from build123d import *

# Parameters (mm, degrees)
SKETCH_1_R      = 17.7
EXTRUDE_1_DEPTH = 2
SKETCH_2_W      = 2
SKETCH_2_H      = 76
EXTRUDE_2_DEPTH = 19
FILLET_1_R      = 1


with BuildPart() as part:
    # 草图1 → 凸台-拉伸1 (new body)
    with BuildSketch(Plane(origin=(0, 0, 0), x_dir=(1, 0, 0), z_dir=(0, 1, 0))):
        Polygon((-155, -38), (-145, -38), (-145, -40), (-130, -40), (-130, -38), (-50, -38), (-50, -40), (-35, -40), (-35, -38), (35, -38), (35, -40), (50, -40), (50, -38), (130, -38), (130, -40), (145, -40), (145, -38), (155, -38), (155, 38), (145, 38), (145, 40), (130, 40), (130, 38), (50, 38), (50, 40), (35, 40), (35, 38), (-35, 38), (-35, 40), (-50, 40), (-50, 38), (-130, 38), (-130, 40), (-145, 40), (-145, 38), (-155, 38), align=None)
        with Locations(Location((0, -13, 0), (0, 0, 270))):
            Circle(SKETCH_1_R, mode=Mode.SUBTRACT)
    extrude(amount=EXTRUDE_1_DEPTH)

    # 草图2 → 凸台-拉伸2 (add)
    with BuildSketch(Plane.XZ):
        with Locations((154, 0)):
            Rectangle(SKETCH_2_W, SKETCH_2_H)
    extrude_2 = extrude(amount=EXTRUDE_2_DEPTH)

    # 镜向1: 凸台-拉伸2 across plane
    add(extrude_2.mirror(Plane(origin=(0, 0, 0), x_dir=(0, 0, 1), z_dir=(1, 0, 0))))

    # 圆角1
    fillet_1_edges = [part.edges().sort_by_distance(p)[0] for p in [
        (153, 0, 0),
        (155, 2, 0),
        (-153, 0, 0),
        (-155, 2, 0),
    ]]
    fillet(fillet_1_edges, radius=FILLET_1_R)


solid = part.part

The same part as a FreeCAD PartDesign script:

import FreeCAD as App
import Part
import Sketcher
from FreeCAD import Vector
Q = App.Units.Quantity


def edges_at(feature, points):
    """Names of the edges that pass closest to the given points."""
    edges = feature.Shape.Edges
    near = lambda p: min(range(len(edges)), key=lambda i: edges[i].distToShape(Part.Vertex(*p))[0])
    return sorted({f"Edge{near(p) + 1}" for p in points})

doc = App.newDocument("Part")
body = doc.addObject("PartDesign::Body", "Body")

sketch1 = body.newObject("Sketcher::SketchObject", "Sketch")
sketch1.AttachmentSupport = (doc.getObject("XZ_Plane"), [""])
sketch1.MapMode = "FlatFace"
sketch1.addGeometry(Part.LineSegment(Vector(-155, 38, 0), Vector(-145, 38, 0)), False)
sketch1.addGeometry(Part.LineSegment(Vector(-145, 38, 0), Vector(-145, 40, 0)), False)
sketch1.addGeometry(Part.LineSegment(Vector(-145, 40, 0), Vector(-130, 40, 0)), False)
sketch1.addGeometry(Part.LineSegment(Vector(-130, 40, 0), Vector(-130, 38, 0)), False)
sketch1.addGeometry(Part.LineSegment(Vector(-130, 38, 0), Vector(-50, 38, 0)), False)
sketch1.addGeometry(Part.LineSegment(Vector(-50, 38, 0), Vector(-50, 40, 0)), False)
sketch1.addGeometry(Part.LineSegment(Vector(-50, 40, 0), Vector(-35, 40, 0)), False)
sketch1.addGeometry(Part.LineSegment(Vector(-35, 40, 0), Vector(-35, 38, 0)), False)
sketch1.addGeometry(Part.LineSegment(Vector(-35, 38, 0), Vector(35, 38, 0)), False)
sketch1.addGeometry(Part.LineSegment(Vector(35, 38, 0), Vector(35, 40, 0)), False)
sketch1.addGeometry(Part.LineSegment(Vector(35, 40, 0), Vector(50, 40, 0)), False)
sketch1.addGeometry(Part.LineSegment(Vector(50, 40, 0), Vector(50, 38, 0)), False)
sketch1.addGeometry(Part.LineSegment(Vector(50, 38, 0), Vector(130, 38, 0)), False)
sketch1.addGeometry(Part.LineSegment(Vector(130, 38, 0), Vector(130, 40, 0)), False)
sketch1.addGeometry(Part.LineSegment(Vector(130, 40, 0), Vector(145, 40, 0)), False)
sketch1.addGeometry(Part.LineSegment(Vector(145, 40, 0), Vector(145, 38, 0)), False)
sketch1.addGeometry(Part.LineSegment(Vector(145, 38, 0), Vector(155, 38, 0)), False)
sketch1.addGeometry(Part.LineSegment(Vector(155, 38, 0), Vector(155, -38, 0)), False)
sketch1.addGeometry(Part.LineSegment(Vector(155, -38, 0), Vector(145, -38, 0)), False)
sketch1.addGeometry(Part.LineSegment(Vector(145, -38, 0), Vector(145, -40, 0)), False)
sketch1.addGeometry(Part.LineSegment(Vector(145, -40, 0), Vector(130, -40, 0)), False)
sketch1.addGeometry(Part.LineSegment(Vector(130, -40, 0), Vector(130, -38, 0)), False)
sketch1.addGeometry(Part.LineSegment(Vector(130, -38, 0), Vector(50, -38, 0)), False)
sketch1.addGeometry(Part.LineSegment(Vector(50, -38, 0), Vector(50, -40, 0)), False)
sketch1.addGeometry(Part.LineSegment(Vector(50, -40, 0), Vector(35, -40, 0)), False)
sketch1.addGeometry(Part.LineSegment(Vector(35, -40, 0), Vector(35, -38, 0)), False)
sketch1.addGeometry(Part.LineSegment(Vector(35, -38, 0), Vector(-35, -38, 0)), False)
sketch1.addGeometry(Part.LineSegment(Vector(-35, -38, 0), Vector(-35, -40, 0)), False)
sketch1.addGeometry(Part.LineSegment(Vector(-35, -40, 0), Vector(-50, -40, 0)), False)
sketch1.addGeometry(Part.LineSegment(Vector(-50, -40, 0), Vector(-50, -38, 0)), False)
sketch1.addGeometry(Part.LineSegment(Vector(-50, -38, 0), Vector(-130, -38, 0)), False)
sketch1.addGeometry(Part.LineSegment(Vector(-130, -38, 0), Vector(-130, -40, 0)), False)
sketch1.addGeometry(Part.LineSegment(Vector(-130, -40, 0), Vector(-145, -40, 0)), False)
sketch1.addGeometry(Part.LineSegment(Vector(-145, -40, 0), Vector(-145, -38, 0)), False)
sketch1.addGeometry(Part.LineSegment(Vector(-145, -38, 0), Vector(-155, -38, 0)), False)
sketch1.addGeometry(Part.LineSegment(Vector(-155, -38, 0), Vector(-155, 38, 0)), False)
sketch1.addGeometry(Part.Circle(Vector(0, 13, 0), Vector(0, 0, 1), 17.7), False)
sketch1.addConstraint(Sketcher.Constraint("Coincident", 0, 2, 1, 1))
sketch1.addConstraint(Sketcher.Constraint("Coincident", 1, 2, 2, 1))
sketch1.addConstraint(Sketcher.Constraint("Coincident", 2, 2, 3, 1))
sketch1.addConstraint(Sketcher.Constraint("Coincident", 3, 2, 4, 1))
sketch1.addConstraint(Sketcher.Constraint("Coincident", 4, 2, 5, 1))
sketch1.addConstraint(Sketcher.Constraint("Coincident", 5, 2, 6, 1))
sketch1.addConstraint(Sketcher.Constraint("Coincident", 6, 2, 7, 1))
sketch1.addConstraint(Sketcher.Constraint("Coincident", 7, 2, 8, 1))
sketch1.addConstraint(Sketcher.Constraint("Coincident", 8, 2, 9, 1))
sketch1.addConstraint(Sketcher.Constraint("Coincident", 9, 2, 10, 1))
sketch1.addConstraint(Sketcher.Constraint("Coincident", 10, 2, 11, 1))
sketch1.addConstraint(Sketcher.Constraint("Coincident", 11, 2, 12, 1))
sketch1.addConstraint(Sketcher.Constraint("Coincident", 12, 2, 13, 1))
sketch1.addConstraint(Sketcher.Constraint("Coincident", 13, 2, 14, 1))
sketch1.addConstraint(Sketcher.Constraint("Coincident", 14, 2, 15, 1))
sketch1.addConstraint(Sketcher.Constraint("Coincident", 15, 2, 16, 1))
sketch1.addConstraint(Sketcher.Constraint("Coincident", 16, 2, 17, 1))
sketch1.addConstraint(Sketcher.Constraint("Coincident", 17, 2, 18, 1))
sketch1.addConstraint(Sketcher.Constraint("Coincident", 18, 2, 19, 1))
sketch1.addConstraint(Sketcher.Constraint("Coincident", 19, 2, 20, 1))
sketch1.addConstraint(Sketcher.Constraint("Coincident", 20, 2, 21, 1))
sketch1.addConstraint(Sketcher.Constraint("Coincident", 21, 2, 22, 1))
sketch1.addConstraint(Sketcher.Constraint("Coincident", 22, 2, 23, 1))
sketch1.addConstraint(Sketcher.Constraint("Coincident", 23, 2, 24, 1))
sketch1.addConstraint(Sketcher.Constraint("Coincident", 24, 2, 25, 1))
sketch1.addConstraint(Sketcher.Constraint("Coincident", 25, 2, 26, 1))
sketch1.addConstraint(Sketcher.Constraint("Coincident", 26, 2, 27, 1))
sketch1.addConstraint(Sketcher.Constraint("Coincident", 27, 2, 28, 1))
sketch1.addConstraint(Sketcher.Constraint("Coincident", 28, 2, 29, 1))
sketch1.addConstraint(Sketcher.Constraint("Coincident", 29, 2, 30, 1))
sketch1.addConstraint(Sketcher.Constraint("Coincident", 30, 2, 31, 1))
sketch1.addConstraint(Sketcher.Constraint("Coincident", 31, 2, 32, 1))
sketch1.addConstraint(Sketcher.Constraint("Coincident", 32, 2, 33, 1))
sketch1.addConstraint(Sketcher.Constraint("Coincident", 33, 2, 34, 1))
sketch1.addConstraint(Sketcher.Constraint("Coincident", 34, 2, 35, 1))
sketch1.addConstraint(Sketcher.Constraint("Coincident", 35, 2, 0, 1))
sketch1.addConstraint(Sketcher.Constraint("Horizontal", 0))
sketch1.addConstraint(Sketcher.Constraint("Vertical", 1))
sketch1.addConstraint(Sketcher.Constraint("Horizontal", 2))
sketch1.addConstraint(Sketcher.Constraint("Vertical", 3))
sketch1.addConstraint(Sketcher.Constraint("Horizontal", 4))
sketch1.addConstraint(Sketcher.Constraint("Vertical", 5))
sketch1.addConstraint(Sketcher.Constraint("Horizontal", 6))
sketch1.addConstraint(Sketcher.Constraint("Vertical", 7))
sketch1.addConstraint(Sketcher.Constraint("Horizontal", 8))
sketch1.addConstraint(Sketcher.Constraint("Vertical", 9))
sketch1.addConstraint(Sketcher.Constraint("Horizontal", 10))
sketch1.addConstraint(Sketcher.Constraint("Vertical", 11))
sketch1.addConstraint(Sketcher.Constraint("Horizontal", 12))
sketch1.addConstraint(Sketcher.Constraint("Vertical", 13))
sketch1.addConstraint(Sketcher.Constraint("Horizontal", 14))
sketch1.addConstraint(Sketcher.Constraint("Vertical", 15))
sketch1.addConstraint(Sketcher.Constraint("Horizontal", 16))
sketch1.addConstraint(Sketcher.Constraint("Vertical", 17))
sketch1.addConstraint(Sketcher.Constraint("Horizontal", 18))
sketch1.addConstraint(Sketcher.Constraint("Vertical", 19))
sketch1.addConstraint(Sketcher.Constraint("Horizontal", 20))
sketch1.addConstraint(Sketcher.Constraint("Vertical", 21))
sketch1.addConstraint(Sketcher.Constraint("Horizontal", 22))
sketch1.addConstraint(Sketcher.Constraint("Vertical", 23))
sketch1.addConstraint(Sketcher.Constraint("Horizontal", 24))
sketch1.addConstraint(Sketcher.Constraint("Vertical", 25))
sketch1.addConstraint(Sketcher.Constraint("Horizontal", 26))
sketch1.addConstraint(Sketcher.Constraint("Vertical", 27))
sketch1.addConstraint(Sketcher.Constraint("Horizontal", 28))
sketch1.addConstraint(Sketcher.Constraint("Vertical", 29))
sketch1.addConstraint(Sketcher.Constraint("Horizontal", 30))
sketch1.addConstraint(Sketcher.Constraint("Vertical", 31))
sketch1.addConstraint(Sketcher.Constraint("Horizontal", 32))
sketch1.addConstraint(Sketcher.Constraint("Vertical", 33))
sketch1.addConstraint(Sketcher.Constraint("Horizontal", 34))
sketch1.addConstraint(Sketcher.Constraint("Vertical", 35))
sketch1.addConstraint(Sketcher.Constraint("Symmetric", 0, 2, 18, 2, -1, 1))
sketch1.addConstraint(Sketcher.Constraint("Symmetric", 2, 2, 20, 2, -1, 1))
sketch1.addConstraint(Sketcher.Constraint("Symmetric", 4, 2, 22, 2, -1, 1))
sketch1.addConstraint(Sketcher.Constraint("Symmetric", 6, 2, 24, 2, -1, 1))
sketch1.addConstraint(Sketcher.Constraint("Symmetric", 8, 2, 26, 2, -1, 1))
sketch1.addConstraint(Sketcher.Constraint("Symmetric", 10, 2, 28, 2, -1, 1))
sketch1.addConstraint(Sketcher.Constraint("Symmetric", 12, 2, 30, 2, -1, 1))
sketch1.addConstraint(Sketcher.Constraint("Symmetric", 14, 2, 32, 2, -1, 1))
sketch1.addConstraint(Sketcher.Constraint("Symmetric", 16, 2, 34, 2, -1, 1))
sketch1.addConstraint(Sketcher.Constraint("Symmetric", 6, 2, 9, 2, -2))
sketch1.addConstraint(Sketcher.Constraint("Symmetric", 4, 2, 11, 2, -2))
sketch1.addConstraint(Sketcher.Constraint("Symmetric", 2, 2, 13, 2, -2))
sketch1.addConstraint(Sketcher.Constraint("Symmetric", 0, 2, 15, 2, -2))
sketch1.addConstraint(Sketcher.Constraint("PointOnObject", 36, 3, -2))
sketch1.addConstraint(Sketcher.Constraint("Horizontal", 0, 2, 3, 2))
sketch1.addConstraint(Sketcher.Constraint("Horizontal", 2, 2, 5, 2))
sketch1.addConstraint(Sketcher.Constraint("Horizontal", 4, 2, 7, 2))
sketch1.addConstraint(Sketcher.Constraint("Equal", 2, 6))
sketch1.addConstraint(Sketcher.Constraint("Diameter", 36, Q("35.4 mm")))
sketch1.addConstraint(Sketcher.Constraint("DistanceX", 0, 1, 0, 2, Q("10 mm")))
sketch1.addConstraint(Sketcher.Constraint("DistanceX", 2, 1, 2, 2, Q("15 mm")))
sketch1.addConstraint(Sketcher.Constraint("DistanceX", 4, 1, 4, 2, Q("80 mm")))
sketch1.addConstraint(Sketcher.Constraint("DistanceX", 8, 1, 8, 2, Q("70 mm")))
sketch1.addConstraint(Sketcher.Constraint("DistanceY", 1, 1, 1, 2, Q("2 mm")))
sketch1.addConstraint(Sketcher.Constraint("DistanceY", 17, 2, 17, 1, Q("76 mm")))
sketch1.addConstraint(Sketcher.Constraint("DistanceY", -1, 1, 36, 3, Q("13 mm")))
pad1 = body.newObject("PartDesign::Pad", "Pad")
pad1.Profile = sketch1
pad1.Length = 2
pad1.Reversed = True

sketch2 = body.newObject("Sketcher::SketchObject", "Sketch001")
sketch2.AttachmentSupport = (doc.getObject("XZ_Plane"), [""])
sketch2.MapMode = "FlatFace"
sketch2.addGeometry(Part.LineSegment(Vector(153, 38, 0), Vector(153, -38, 0)), False)
sketch2.addGeometry(Part.LineSegment(Vector(153, -38, 0), Vector(155, -38, 0)), False)
sketch2.addGeometry(Part.LineSegment(Vector(155, -38, 0), Vector(155, 38, 0)), False)
sketch2.addGeometry(Part.LineSegment(Vector(155, 38, 0), Vector(153, 38, 0)), False)
sketch2.addConstraint(Sketcher.Constraint("Coincident", 0, 2, 1, 1))
sketch2.addConstraint(Sketcher.Constraint("Coincident", 1, 2, 2, 1))
sketch2.addConstraint(Sketcher.Constraint("Coincident", 2, 2, 3, 1))
sketch2.addConstraint(Sketcher.Constraint("Coincident", 3, 2, 0, 1))
sketch2.addConstraint(Sketcher.Constraint("Vertical", 0))
sketch2.addConstraint(Sketcher.Constraint("Horizontal", 1))
sketch2.addConstraint(Sketcher.Constraint("Vertical", 2))
sketch2.addConstraint(Sketcher.Constraint("Horizontal", 3))
sketch2.addConstraint(Sketcher.Constraint("DistanceX", 1, 1, 1, 2, Q("2 mm")))
sketch2.addConstraint(Sketcher.Constraint("DistanceY", 0, 2, 0, 1, Q("76 mm")))
sketch2.addConstraint(Sketcher.Constraint("DistanceX", -1, 1, 0, 2, Q("153 mm")))
sketch2.addConstraint(Sketcher.Constraint("DistanceY", 0, 2, -1, 1, Q("38 mm")))
pad2 = body.newObject("PartDesign::Pad", "Pad001")
pad2.Profile = sketch2
pad2.Length = 19
doc.recompute()

mirrored = body.newObject("PartDesign::Mirrored", "Mirrored")
mirrored.Originals = [pad2]
mirrored.MirrorPlane = (doc.getObject("YZ_Plane"), [""])
body.Tip = mirrored
doc.recompute()

fillet = body.newObject("PartDesign::Fillet", "Fillet")
fillet.Base = (mirrored, edges_at(mirrored, [
    (153, 0, 0),
    (155, 2, 0),
    (-153, 0, 0),
    (-155, 2, 0),
]))
fillet.Radius = 1

doc.recompute()
